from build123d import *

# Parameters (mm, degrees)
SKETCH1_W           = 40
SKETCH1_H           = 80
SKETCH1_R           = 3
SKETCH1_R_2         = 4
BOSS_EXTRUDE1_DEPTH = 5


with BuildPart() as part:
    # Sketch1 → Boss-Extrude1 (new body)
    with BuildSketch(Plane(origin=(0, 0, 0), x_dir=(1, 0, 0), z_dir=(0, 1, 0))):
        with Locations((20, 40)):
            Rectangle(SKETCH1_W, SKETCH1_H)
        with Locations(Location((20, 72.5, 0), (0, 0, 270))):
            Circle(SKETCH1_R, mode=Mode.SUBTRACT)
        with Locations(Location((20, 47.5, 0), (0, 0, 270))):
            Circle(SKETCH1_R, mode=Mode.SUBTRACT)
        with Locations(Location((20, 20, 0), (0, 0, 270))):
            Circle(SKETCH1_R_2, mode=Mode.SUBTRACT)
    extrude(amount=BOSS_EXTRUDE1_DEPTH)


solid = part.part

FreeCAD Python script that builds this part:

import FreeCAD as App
import Part
import Sketcher
Q = App.Units.Quantity

doc = App.newDocument("Part")
body = doc.addObject("PartDesign::Body", "Body")

sketch1 = body.newObject("Sketcher::SketchObject", "Sketch")
sketch1.AttachmentSupport = (doc.getObject("XZ_Plane"), [""])
sketch1.MapMode = "FlatFace"
sketch1.addGeometry([
    Part.LineSegment(App.Vector(0, -80, 0), App.Vector(0, 0, 0)),
    Part.LineSegment(App.Vector(0, 0, 0), App.Vector(40, 0, 0)),
    Part.LineSegment(App.Vector(40, 0, 0), App.Vector(40, -80, 0)),
    Part.LineSegment(App.Vector(40, -80, 0), App.Vector(0, -80, 0)),
    Part.Circle(App.Vector(20, -20, 0), App.Vector(0, 0, 1), 4),
    Part.Circle(App.Vector(20, -47.5, 0), App.Vector(0, 0, 1), 3),
    Part.Circle(App.Vector(20, -72.5, 0), App.Vector(0, 0, 1), 3),
], False)
sketch1.addConstraint([
    Sketcher.Constraint("Coincident", 0, 2, 1, 1),
    Sketcher.Constraint("Coincident", 1, 2, 2, 1),
    Sketcher.Constraint("Coincident", 2, 2, 3, 1),
    Sketcher.Constraint("Coincident", 3, 2, 0, 1),
    Sketcher.Constraint("Vertical", 0),
    Sketcher.Constraint("Horizontal", 1),
    Sketcher.Constraint("Vertical", 2),
    Sketcher.Constraint("Horizontal", 3),
    Sketcher.Constraint("Coincident", 0, 2, -1, 1),
    Sketcher.Constraint("Equal", 5, 6),
    Sketcher.Constraint("Vertical", 4, 3, 5, 3),
    Sketcher.Constraint("Vertical", 5, 3, 6, 3),
    Sketcher.Constraint("Diameter", 4, Q("8 mm")),
    Sketcher.Constraint("Diameter", 5, Q("6 mm")),
    Sketcher.Constraint("DistanceX", 1, 1, 1, 2, Q("40 mm")),
    Sketcher.Constraint("DistanceY", 0, 1, 0, 2, Q("80 mm")),
    Sketcher.Constraint("DistanceX", -1, 1, 4, 3, Q("20 mm")),
    Sketcher.Constraint("DistanceY", 4, 3, -1, 1, Q("20 mm")),
    Sketcher.Constraint("DistanceY", 6, 3, 5, 3, Q("25 mm")),
    Sketcher.Constraint("DistanceY", 5, 3, -1, 1, Q("47.5 mm")),
])
pad1 = body.newObject("PartDesign::Pad", "Pad")
pad1.Profile = sketch1
pad1.Length = 5
pad1.Reversed = True

doc.recompute()
